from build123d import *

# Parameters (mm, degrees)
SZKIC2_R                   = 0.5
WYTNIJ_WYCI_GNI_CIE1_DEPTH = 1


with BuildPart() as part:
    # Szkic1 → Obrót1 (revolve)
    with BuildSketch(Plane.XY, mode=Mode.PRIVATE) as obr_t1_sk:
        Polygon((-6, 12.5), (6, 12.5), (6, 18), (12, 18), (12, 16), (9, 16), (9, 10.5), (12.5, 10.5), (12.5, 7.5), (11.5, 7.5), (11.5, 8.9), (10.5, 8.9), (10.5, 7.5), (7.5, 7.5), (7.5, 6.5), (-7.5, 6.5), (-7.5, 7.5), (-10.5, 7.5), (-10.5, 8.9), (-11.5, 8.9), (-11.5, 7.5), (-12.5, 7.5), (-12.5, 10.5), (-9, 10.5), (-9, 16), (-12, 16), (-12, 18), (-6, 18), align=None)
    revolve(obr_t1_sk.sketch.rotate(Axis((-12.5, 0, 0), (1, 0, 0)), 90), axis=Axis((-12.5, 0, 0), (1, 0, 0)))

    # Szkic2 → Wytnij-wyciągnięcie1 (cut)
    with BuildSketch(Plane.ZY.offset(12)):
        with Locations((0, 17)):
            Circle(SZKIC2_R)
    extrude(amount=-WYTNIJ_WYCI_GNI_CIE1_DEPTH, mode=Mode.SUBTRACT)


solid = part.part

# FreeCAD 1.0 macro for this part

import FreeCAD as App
import Part
import Sketcher
Q = App.Units.Quantity


def add_polygon(sketch, points):
    """Adds a closed chain of lines whose ends are joined by coincident constraints."""
    first, n = sketch.GeometryCount, len(points)
    for a, b in zip(points, points[1:] + points[:1]):
        sketch.addGeometry(Part.LineSegment(App.Vector(*a, 0), App.Vector(*b, 0)), False)
    for i in range(n):
        sketch.addConstraint(Sketcher.Constraint("Coincident", first + i, 2, first + (i + 1) % n, 1))

doc = App.newDocument("Part")
body = doc.addObject("PartDesign::Body", "Body")

# Sketch on XY plane
sketch1 = body.newObject("Sketcher::SketchObject", "Sketch")
sketch1.AttachmentSupport = (doc.getObject("XY_Plane"), [""])
sketch1.MapMode = "FlatFace"
add_polygon(sketch1, [(6, 12.5), (-6, 12.5), (-6, 18), (-12, 18), (-12, 16), (-9, 16), (-9, 10.5), (-12.5, 10.5), (-12.5, 7.5), (-11.5, 7.5), (-11.5, 8.9), (-10.5, 8.9), (-10.5, 7.5), (-7.5, 7.5), (-7.5, 6.5), (7.5, 6.5), (7.5, 7.5), (10.5, 7.5), (10.5, 8.9), (11.5, 8.9), (11.5, 7.5), (12.5, 7.5), (12.5, 10.5), (9, 10.5), (9, 16), (12, 16), (12, 18), (6, 18)])  # lines 0-27
sketch1.addConstraint([
    Sketcher.Constraint("Horizontal", 0),
    Sketcher.Constraint("Vertical", 1),
    Sketcher.Constraint("Horizontal", 2),
    Sketcher.Constraint("Vertical", 3),
    Sketcher.Constraint("Horizontal", 4),
    Sketcher.Constraint("Vertical", 5),
    Sketcher.Constraint("Horizontal", 6),
    Sketcher.Constraint("Vertical", 7),
    Sketcher.Constraint("Horizontal", 8),
    Sketcher.Constraint("Vertical", 9),
    Sketcher.Constraint("Horizontal", 10),
    Sketcher.Constraint("Vertical", 11),
    Sketcher.Constraint("Horizontal", 12),
    Sketcher.Constraint("Vertical", 13),
    Sketcher.Constraint("Horizontal", 14),
    Sketcher.Constraint("Vertical", 15),
    Sketcher.Constraint("Horizontal", 16),
    Sketcher.Constraint("Vertical", 17),
    Sketcher.Constraint("Horizontal", 18),
    Sketcher.Constraint("Vertical", 19),
    Sketcher.Constraint("Horizontal", 20),
    Sketcher.Constraint("Vertical", 21),
    Sketcher.Constraint("Horizontal", 22),
    Sketcher.Constraint("Vertical", 23),
    Sketcher.Constraint("Horizontal", 24),
    Sketcher.Constraint("Vertical", 25),
    Sketcher.Constraint("Horizontal", 26),
    Sketcher.Constraint("Vertical", 27),
    Sketcher.Constraint("Symmetric", 12, 2, 15, 2, -2),
    Sketcher.Constraint("Symmetric", 10, 2, 17, 2, -2),
    Sketcher.Constraint("Symmetric", 8, 2, 19, 2, -2),
    Sketcher.Constraint("Symmetric", 6, 2, 21, 2, -2),
    Sketcher.Constraint("Symmetric", 4, 2, 23, 2, -2),
    Sketcher.Constraint("Symmetric", 2, 2, 25, 2, -2),
    Sketcher.Constraint("Horizontal", 8, 2, 11, 2),
    Sketcher.Constraint("Equal", 8, 10),
    Sketcher.Constraint("Equal", 4, 12),
    Sketcher.Constraint("Equal", 2, 26),
    Sketcher.Constraint("Equal", 1, 5),
    Sketcher.Constraint("Equal", 24, 7),
    Sketcher.Constraint("Equal", 20, 13),
    Sketcher.Constraint("DistanceX", 0, 2, 0, 1, Q("12 mm")),
    Sketcher.Constraint("DistanceX", 2, 2, 2, 1, Q("6 mm")),
    Sketcher.Constraint("DistanceX", 4, 1, 4, 2, Q("3 mm")),
    Sketcher.Constraint("DistanceX", 8, 1, 8, 2, Q("1 mm")),
    Sketcher.Constraint("DistanceX", 14, 1, 14, 2, Q("15 mm")),
    Sketcher.Constraint("DistanceY", 3, 2, 3, 1, Q("2 mm")),
    Sketcher.Constraint("DistanceY", 1, 1, 1, 2, Q("5.5 mm")),
    Sketcher.Constraint("DistanceY", 9, 1, 9, 2, Q("1.4 mm")),
    Sketcher.Constraint("DistanceY", -1, 1, 1, 2, Q("18 mm")),
])
revolution = body.newObject("PartDesign::Revolution", "Revolution")
revolution.Profile = sketch1
revolution.ReferenceAxis = (sketch1, ["H_Axis"])
revolution.Angle = 360

# Sketch on YZ plane
sketch2 = body.newObject("Sketcher::SketchObject", "Sketch001")
sketch2.AttachmentSupport = (doc.getObject("YZ_Plane"), [""])
sketch2.MapMode = "FlatFace"
sketch2.AttachmentOffset = App.Placement(App.Vector(0, 0, -12), App.Rotation())
sketch2.addGeometry(Part.Circle(App.Vector(17, 0, 0), App.Vector(0, 0, 1), 0.5), False)
sketch2.addConstraint([
    Sketcher.Constraint("PointOnObject", 0, 3, -1),
    Sketcher.Constraint("Diameter", 0, Q("1 mm")),
    Sketcher.Constraint("DistanceX", -1, 1, 0, 3, Q("17 mm")),
])
pocket1 = body.newObject("PartDesign::Pocket", "Pocket")
pocket1.Profile = sketch2
pocket1.Length = 1
pocket1.Reversed = True

doc.recompute()
